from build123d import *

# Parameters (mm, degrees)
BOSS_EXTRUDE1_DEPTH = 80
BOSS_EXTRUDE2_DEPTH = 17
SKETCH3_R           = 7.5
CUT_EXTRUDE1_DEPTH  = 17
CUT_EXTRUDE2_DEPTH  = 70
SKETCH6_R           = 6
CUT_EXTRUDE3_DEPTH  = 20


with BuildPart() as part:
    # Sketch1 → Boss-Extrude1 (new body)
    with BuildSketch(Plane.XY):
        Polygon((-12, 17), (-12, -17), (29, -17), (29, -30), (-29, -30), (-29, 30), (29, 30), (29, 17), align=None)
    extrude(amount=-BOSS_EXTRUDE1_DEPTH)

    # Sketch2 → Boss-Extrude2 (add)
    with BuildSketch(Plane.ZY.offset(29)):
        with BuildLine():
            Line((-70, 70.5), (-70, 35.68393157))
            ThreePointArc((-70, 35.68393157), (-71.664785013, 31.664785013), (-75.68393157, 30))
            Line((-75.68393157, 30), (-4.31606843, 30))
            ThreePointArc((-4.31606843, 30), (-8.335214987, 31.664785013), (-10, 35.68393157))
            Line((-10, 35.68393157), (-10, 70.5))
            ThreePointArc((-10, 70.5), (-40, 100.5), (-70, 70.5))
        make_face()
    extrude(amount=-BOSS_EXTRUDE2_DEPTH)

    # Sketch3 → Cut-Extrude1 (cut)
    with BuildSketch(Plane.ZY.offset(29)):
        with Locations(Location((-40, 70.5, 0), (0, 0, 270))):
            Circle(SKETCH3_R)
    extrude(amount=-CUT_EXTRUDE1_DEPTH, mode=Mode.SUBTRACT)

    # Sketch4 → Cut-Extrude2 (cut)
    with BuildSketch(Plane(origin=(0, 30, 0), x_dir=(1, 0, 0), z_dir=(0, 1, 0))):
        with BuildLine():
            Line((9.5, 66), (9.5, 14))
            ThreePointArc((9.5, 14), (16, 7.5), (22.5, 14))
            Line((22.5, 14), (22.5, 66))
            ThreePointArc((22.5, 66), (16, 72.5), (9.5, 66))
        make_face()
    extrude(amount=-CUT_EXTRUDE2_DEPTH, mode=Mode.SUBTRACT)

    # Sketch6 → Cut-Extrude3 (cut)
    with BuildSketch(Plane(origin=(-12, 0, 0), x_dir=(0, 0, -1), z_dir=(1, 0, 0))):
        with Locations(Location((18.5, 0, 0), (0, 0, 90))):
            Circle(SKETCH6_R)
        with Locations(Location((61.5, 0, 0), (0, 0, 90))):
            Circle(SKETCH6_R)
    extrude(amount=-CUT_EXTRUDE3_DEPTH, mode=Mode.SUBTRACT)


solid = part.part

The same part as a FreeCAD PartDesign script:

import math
import FreeCAD as App
import Part
import Sketcher
from FreeCAD import Vector


def add_polygon(sketch, points):
    """Adds a closed chain of lines whose ends are joined by coincident constraints."""
    first, n = sketch.GeometryCount, len(points)
    for a, b in zip(points, points[1:] + points[:1]):
        sketch.addGeometry(Part.LineSegment(App.Vector(*a, 0), App.Vector(*b, 0)), False)
    for i in range(n):
        sketch.addConstraint(Sketcher.Constraint("Coincident", first + i, 2, first + (i + 1) % n, 1))

doc = App.newDocument("Part")
body = doc.addObject("PartDesign::Body", "Body")

sketch1 = doc.addObject("Sketcher::SketchObject", "Sketch")
body.addObject(sketch1)
sketch1.AttachmentSupport = (doc.XY_Plane, [""])
sketch1.MapMode = "FlatFace"
add_polygon(sketch1, [(-12, -17), (-12, 17), (29, 17), (29, 30), (-29, 30), (-29, -30), (29, -30), (29, -17)])
sketch1.addConstraint([
    Sketcher.Constraint("Vertical", 0),
    Sketcher.Constraint("Horizontal", 1),
    Sketcher.Constraint("Vertical", 2),
    Sketcher.Constraint("Horizontal", 3),
    Sketcher.Constraint("Vertical", 4),
    Sketcher.Constraint("Horizontal", 5),
    Sketcher.Constraint("Vertical", 6),
    Sketcher.Constraint("Horizontal", 7),
    Sketcher.Constraint("Symmetric", 2, 2, 4, 2, -1, 1),
    Sketcher.Constraint("Symmetric", 1, 2, 6, 2, -1),
    Sketcher.Constraint("DistanceX", 1, 1, 1, 2, 41.0),
    Sketcher.Constraint("DistanceX", 3, 2, 3, 1, 58.0),
    Sketcher.Constraint("DistanceY", 0, 1, 0, 2, 34.0),
    Sketcher.Constraint("DistanceY", 2, 1, 2, 2, 13.0),
])
pad1 = doc.addObject("PartDesign::Pad", "Pad")
body.addObject(pad1)
pad1.Profile = sketch1
pad1.Length = 80
pad1.Reversed = True

sketch2 = doc.addObject("Sketcher::SketchObject", "Sketch001")
body.addObject(sketch2)
sketch2.AttachmentSupport = (doc.YZ_Plane, [""])
sketch2.MapMode = "FlatFace"
sketch2.AttachmentOffset = App.Placement(Vector(0, 0, -29), App.Rotation())
sketch2.addGeometry([
    Part.LineSegment(Vector(70, -70, 0), Vector(36, -70, 0)),
    Part.ArcOfCircle(Part.Circle(Vector(36, -76, 0), Vector(0, 0, 1), 6), math.radians(90), math.radians(180)),
    Part.LineSegment(Vector(30, -76, 0), Vector(30, -4, 0)),
    Part.ArcOfCircle(Part.Circle(Vector(36, -4, 0), Vector(0, 0, 1), 6), math.radians(180), math.radians(270)),
    Part.LineSegment(Vector(36, -10, 0), Vector(70, -10, 0)),
    Part.ArcOfCircle(Part.Circle(Vector(70, -40, 0), Vector(0, 0, 1), 30), math.radians(-90), math.radians(90)),
], False)
sketch2.addConstraint([
    Sketcher.Constraint("Tangent", 0, 2, 1, 1),
    Sketcher.Constraint("Tangent", 1, 2, 2, 1),
    Sketcher.Constraint("Tangent", 2, 2, 3, 1),
    Sketcher.Constraint("Tangent", 3, 2, 4, 1),
    Sketcher.Constraint("Tangent", 4, 2, 5, 2),
    Sketcher.Constraint("Tangent", 5, 1, 0, 1),
    Sketcher.Constraint("Horizontal", 0),
    Sketcher.Constraint("Vertical", 2),
    Sketcher.Constraint("Horizontal", 4),
    Sketcher.Constraint("Equal", 1, 3),
    Sketcher.Constraint("Radius", 5, 30.0),
    Sketcher.Constraint("DistanceY", 5, 3, -1, 1, 40.0),
    Sketcher.Constraint("DistanceX", -1, 1, 1, 2, 30.0),
    Sketcher.Constraint("DistanceX", -1, 1, 5, 3, 70.5),
    Sketcher.Constraint("Radius", 1, 5.683932),
])
pad2 = doc.addObject("PartDesign::Pad", "Pad001")
body.addObject(pad2)
pad2.Profile = sketch2
pad2.Length = 17

sketch3 = doc.addObject("Sketcher::SketchObject", "Sketch002")
body.addObject(sketch3)
sketch3.AttachmentSupport = (doc.YZ_Plane, [""])
sketch3.MapMode = "FlatFace"
sketch3.AttachmentOffset = App.Placement(Vector(0, 0, -29), App.Rotation())
sketch3.addGeometry(Part.Circle(Vector(70, -40, 0), Vector(0, 0, 1), 8), False)
sketch3.addConstraint([
    Sketcher.Constraint("Diameter", 0, 15.0),
    Sketcher.Constraint("DistanceY", 0, 3, -1, 1, 40.0),
    Sketcher.Constraint("DistanceX", -1, 1, 0, 3, 70.5),
])
pocket1 = doc.addObject("PartDesign::Pocket", "Pocket")
body.addObject(pocket1)
pocket1.Profile = sketch3
pocket1.Length = 17
pocket1.Reversed = True

sketch4 = doc.addObject("Sketcher::SketchObject", "Sketch003")
body.addObject(sketch4)
sketch4.AttachmentSupport = (doc.XZ_Plane, [""])
sketch4.MapMode = "FlatFace"
sketch4.AttachmentOffset = App.Placement(Vector(0, 0, -30), App.Rotation())
sketch4.addGeometry([
    Part.LineSegment(Vector(10, -66, 0), Vector(10, -14, 0)),
    Part.ArcOfCircle(Part.Circle(Vector(16, -14, 0), Vector(0, 0, 1), 6), math.radians(0), math.radians(180)),
    Part.LineSegment(Vector(22, -14, 0), Vector(22, -66, 0)),
    Part.ArcOfCircle(Part.Circle(Vector(16, -66, 0), Vector(0, 0, 1), 6), math.radians(180), math.radians(360)),
], False)
sketch4.addConstraint([
    Sketcher.Constraint("Tangent", 0, 2, 1, 2),
    Sketcher.Constraint("Tangent", 1, 1, 2, 1),
    Sketcher.Constraint("Tangent", 2, 2, 3, 2),
    Sketcher.Constraint("Tangent", 3, 1, 0, 1),
    Sketcher.Constraint("Vertical", 0),
    Sketcher.Constraint("Vertical", 2),
    Sketcher.Constraint("Radius", 1, 6.5),
    Sketcher.Constraint("DistanceY", 0, 1, 0, 2, 52.0),
    Sketcher.Constraint("DistanceX", -1, 1, 1, 3, 16.0),
    Sketcher.Constraint("DistanceY", 1, 3, -1, 1, 14.0),
])
pocket2 = doc.addObject("PartDesign::Pocket", "Pocket001")
body.addObject(pocket2)
pocket2.Profile = sketch4
pocket2.Length = 70
pocket2.Reversed = True

sketch5 = doc.addObject("Sketcher::SketchObject", "Sketch004")
body.addObject(sketch5)
sketch5.AttachmentSupport = (doc.YZ_Plane, [""])
sketch5.MapMode = "FlatFace"
sketch5.AttachmentOffset = App.Placement(Vector(0, 0, -12), App.Rotation())
sketch5.addGeometry([
    Part.Circle(Vector(0, -18, 0), Vector(0, 0, 1), 6),
    Part.Circle(Vector(0, -62, 0), Vector(0, 0, 1), 6),
], False)
sketch5.addConstraint([
    Sketcher.Constraint("Equal", 0, 1),
    Sketcher.Constraint("PointOnObject", 0, 3, -2),
    Sketcher.Constraint("PointOnObject", 1, 3, -2),
    Sketcher.Constraint("Diameter", 0, 12.0),
    Sketcher.Constraint("DistanceY", 1, 3, 0, 3, 43.0),
    Sketcher.Constraint("DistanceY", 0, 3, -1, 1, 18.5),
])
pocket3 = doc.addObject("PartDesign::Pocket", "Pocket002")
body.addObject(pocket3)
pocket3.Profile = sketch5
pocket3.Length = 20

doc.recompute()
